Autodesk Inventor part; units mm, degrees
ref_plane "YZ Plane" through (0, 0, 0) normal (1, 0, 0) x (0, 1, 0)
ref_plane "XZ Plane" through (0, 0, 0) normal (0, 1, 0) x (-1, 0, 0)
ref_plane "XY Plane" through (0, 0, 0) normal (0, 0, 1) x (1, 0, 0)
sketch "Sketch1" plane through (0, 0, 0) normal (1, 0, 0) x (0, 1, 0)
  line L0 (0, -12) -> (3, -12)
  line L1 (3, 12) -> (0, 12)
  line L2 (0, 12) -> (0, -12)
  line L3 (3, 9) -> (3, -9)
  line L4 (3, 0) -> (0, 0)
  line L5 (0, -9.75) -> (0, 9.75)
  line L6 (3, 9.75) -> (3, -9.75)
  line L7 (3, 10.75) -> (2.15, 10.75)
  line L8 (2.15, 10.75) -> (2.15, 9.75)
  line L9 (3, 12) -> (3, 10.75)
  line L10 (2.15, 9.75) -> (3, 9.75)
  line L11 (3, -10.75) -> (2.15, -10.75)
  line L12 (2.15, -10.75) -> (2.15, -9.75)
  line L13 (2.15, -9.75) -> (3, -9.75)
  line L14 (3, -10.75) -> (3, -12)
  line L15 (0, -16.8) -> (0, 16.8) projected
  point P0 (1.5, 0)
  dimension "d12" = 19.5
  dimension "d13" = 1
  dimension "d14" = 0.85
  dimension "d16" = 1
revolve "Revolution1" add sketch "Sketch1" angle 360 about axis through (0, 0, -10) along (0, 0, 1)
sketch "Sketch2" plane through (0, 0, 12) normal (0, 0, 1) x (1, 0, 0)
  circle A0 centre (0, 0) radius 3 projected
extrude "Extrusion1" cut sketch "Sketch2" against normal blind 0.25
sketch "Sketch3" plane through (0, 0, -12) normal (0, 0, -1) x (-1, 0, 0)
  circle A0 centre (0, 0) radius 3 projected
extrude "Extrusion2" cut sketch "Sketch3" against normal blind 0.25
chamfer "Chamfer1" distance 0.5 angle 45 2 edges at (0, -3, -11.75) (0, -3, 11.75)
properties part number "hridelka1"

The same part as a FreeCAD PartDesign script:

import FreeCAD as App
import Part
import Sketcher

V = App.Vector


def edges_at(feature, points):
    """Names of the edges that pass closest to the given points."""
    edges = feature.Shape.Edges
    near = lambda p: min(range(len(edges)), key=lambda i: edges[i].distToShape(Part.Vertex(*p))[0])
    return sorted({f"Edge{near(p) + 1}" for p in points})

doc = App.newDocument("Part")
body = doc.addObject("PartDesign::Body", "Body")

sketch1 = doc.addObject("Sketcher::SketchObject", "Sketch")
body.addObject(sketch1)
sketch1.AttachmentSupport = (doc.YZ_Plane, [""])
sketch1.MapMode = "FlatFace"
sketch1.addGeometry(Part.LineSegment(V(0, -12, 0), V(3, -12, 0)), False)
sketch1.addGeometry(Part.LineSegment(V(3, -12, 0), V(3, -10.8, 0)), False)
sketch1.addGeometry(Part.LineSegment(V(3, -10.8, 0), V(2.1, -10.8, 0)), False)
sketch1.addGeometry(Part.LineSegment(V(2.1, -10.8, 0), V(2.1, -9.8, 0)), False)
sketch1.addGeometry(Part.LineSegment(V(2.1, -9.8, 0), V(3, -9.8, 0)), False)
sketch1.addGeometry(Part.LineSegment(V(3, -9.8, 0), V(3, 9.8, 0)), False)
sketch1.addGeometry(Part.LineSegment(V(3, 9.8, 0), V(2.1, 9.8, 0)), False)
sketch1.addGeometry(Part.LineSegment(V(2.1, 9.8, 0), V(2.1, 10.8, 0)), False)
sketch1.addGeometry(Part.LineSegment(V(2.1, 10.8, 0), V(3, 10.8, 0)), False)
sketch1.addGeometry(Part.LineSegment(V(3, 10.8, 0), V(3, 12, 0)), False)
sketch1.addGeometry(Part.LineSegment(V(3, 12, 0), V(0, 12, 0)), False)
sketch1.addGeometry(Part.LineSegment(V(0, 12, 0), V(0, -12, 0)), False)
sketch1.addConstraint(Sketcher.Constraint("Coincident", 0, 2, 1, 1))
sketch1.addConstraint(Sketcher.Constraint("Coincident", 1, 2, 2, 1))
sketch1.addConstraint(Sketcher.Constraint("Coincident", 2, 2, 3, 1))
sketch1.addConstraint(Sketcher.Constraint("Coincident", 3, 2, 4, 1))
sketch1.addConstraint(Sketcher.Constraint("Coincident", 4, 2, 5, 1))
sketch1.addConstraint(Sketcher.Constraint("Coincident", 5, 2, 6, 1))
sketch1.addConstraint(Sketcher.Constraint("Coincident", 6, 2, 7, 1))
sketch1.addConstraint(Sketcher.Constraint("Coincident", 7, 2, 8, 1))
sketch1.addConstraint(Sketcher.Constraint("Coincident", 8, 2, 9, 1))
sketch1.addConstraint(Sketcher.Constraint("Coincident", 9, 2, 10, 1))
sketch1.addConstraint(Sketcher.Constraint("Coincident", 10, 2, 11, 1))
sketch1.addConstraint(Sketcher.Constraint("Coincident", 11, 2, 0, 1))
sketch1.addConstraint(Sketcher.Constraint("Horizontal", 0))
sketch1.addConstraint(Sketcher.Constraint("Vertical", 1))
sketch1.addConstraint(Sketcher.Constraint("Horizontal", 2))
sketch1.addConstraint(Sketcher.Constraint("Vertical", 3))
sketch1.addConstraint(Sketcher.Constraint("Horizontal", 4))
sketch1.addConstraint(Sketcher.Constraint("Vertical", 5))
sketch1.addConstraint(Sketcher.Constraint("Horizontal", 6))
sketch1.addConstraint(Sketcher.Constraint("Vertical", 7))
sketch1.addConstraint(Sketcher.Constraint("Horizontal", 8))
sketch1.addConstraint(Sketcher.Constraint("Vertical", 9))
sketch1.addConstraint(Sketcher.Constraint("Horizontal", 10))
sketch1.addConstraint(Sketcher.Constraint("Vertical", 11))
sketch1.addConstraint(Sketcher.Constraint("Symmetric", 10, 2, 11, 2, -1, 1))
sketch1.addConstraint(Sketcher.Constraint("Symmetric", 3, 2, 6, 2, -1))
sketch1.addConstraint(Sketcher.Constraint("Symmetric", 1, 2, 8, 2, -1))
sketch1.addConstraint(Sketcher.Constraint("Vertical", 1, 2, 4, 2))
sketch1.addConstraint(Sketcher.Constraint("DistanceY", 3, 1, 3, 2, 1.0))
sketch1.addConstraint(Sketcher.Constraint("DistanceY", 5, 1, 5, 2, 19.5))
sketch1.addConstraint(Sketcher.Constraint("DistanceX", 2, 2, 2, 1, 0.85))
sketch1.addConstraint(Sketcher.Constraint("DistanceX", 0, 1, 0, 2, 3.0))
sketch1.addConstraint(Sketcher.Constraint("DistanceY", 11, 2, 11, 1, 24.0))
revolution = doc.addObject("PartDesign::Revolution", "Revolution")
body.addObject(revolution)
revolution.Profile = sketch1
revolution.ReferenceAxis = (sketch1, ["V_Axis"])
revolution.Angle = 360

sketch2 = doc.addObject("Sketcher::SketchObject", "Sketch001")
body.addObject(sketch2)
sketch2.AttachmentSupport = (doc.XY_Plane, [""])
sketch2.MapMode = "FlatFace"
sketch2.AttachmentOffset = App.Placement(V(0, 0, 12), App.Rotation())
sketch2.addGeometry(Part.Circle(V(0, 0, 0), V(0, 0, 1), 3), False)
sketch2.addConstraint(Sketcher.Constraint("Coincident", 0, 3, -1, 1))
sketch2.addConstraint(Sketcher.Constraint("Diameter", 0, 6.0))
pocket1 = doc.addObject("PartDesign::Pocket", "Pocket")
body.addObject(pocket1)
pocket1.Profile = sketch2
pocket1.Length = 0.25

sketch3 = doc.addObject("Sketcher::SketchObject", "Sketch002")
body.addObject(sketch3)
sketch3.AttachmentSupport = (doc.XY_Plane, [""])
sketch3.MapMode = "FlatFace"
sketch3.AttachmentOffset = App.Placement(V(0, 0, -12), App.Rotation())
sketch3.addGeometry(Part.Circle(V(0, 0, 0), V(0, 0, 1), 3), False)
sketch3.addConstraint(Sketcher.Constraint("Coincident", 0, 3, -1, 1))
sketch3.addConstraint(Sketcher.Constraint("Diameter", 0, 6.0))
pocket2 = doc.addObject("PartDesign::Pocket", "Pocket001")
body.addObject(pocket2)
pocket2.Profile = sketch3
pocket2.Length = 0.25
pocket2.Reversed = True
doc.recompute()

chamfer = doc.addObject("PartDesign::Chamfer", "Chamfer")
body.addObject(chamfer)
chamfer.Base = (pocket2, edges_at(pocket2, [(0, -3, -11.75), (0, -3, 11.75)]))
chamfer.Size = 0.5

doc.recompute()
